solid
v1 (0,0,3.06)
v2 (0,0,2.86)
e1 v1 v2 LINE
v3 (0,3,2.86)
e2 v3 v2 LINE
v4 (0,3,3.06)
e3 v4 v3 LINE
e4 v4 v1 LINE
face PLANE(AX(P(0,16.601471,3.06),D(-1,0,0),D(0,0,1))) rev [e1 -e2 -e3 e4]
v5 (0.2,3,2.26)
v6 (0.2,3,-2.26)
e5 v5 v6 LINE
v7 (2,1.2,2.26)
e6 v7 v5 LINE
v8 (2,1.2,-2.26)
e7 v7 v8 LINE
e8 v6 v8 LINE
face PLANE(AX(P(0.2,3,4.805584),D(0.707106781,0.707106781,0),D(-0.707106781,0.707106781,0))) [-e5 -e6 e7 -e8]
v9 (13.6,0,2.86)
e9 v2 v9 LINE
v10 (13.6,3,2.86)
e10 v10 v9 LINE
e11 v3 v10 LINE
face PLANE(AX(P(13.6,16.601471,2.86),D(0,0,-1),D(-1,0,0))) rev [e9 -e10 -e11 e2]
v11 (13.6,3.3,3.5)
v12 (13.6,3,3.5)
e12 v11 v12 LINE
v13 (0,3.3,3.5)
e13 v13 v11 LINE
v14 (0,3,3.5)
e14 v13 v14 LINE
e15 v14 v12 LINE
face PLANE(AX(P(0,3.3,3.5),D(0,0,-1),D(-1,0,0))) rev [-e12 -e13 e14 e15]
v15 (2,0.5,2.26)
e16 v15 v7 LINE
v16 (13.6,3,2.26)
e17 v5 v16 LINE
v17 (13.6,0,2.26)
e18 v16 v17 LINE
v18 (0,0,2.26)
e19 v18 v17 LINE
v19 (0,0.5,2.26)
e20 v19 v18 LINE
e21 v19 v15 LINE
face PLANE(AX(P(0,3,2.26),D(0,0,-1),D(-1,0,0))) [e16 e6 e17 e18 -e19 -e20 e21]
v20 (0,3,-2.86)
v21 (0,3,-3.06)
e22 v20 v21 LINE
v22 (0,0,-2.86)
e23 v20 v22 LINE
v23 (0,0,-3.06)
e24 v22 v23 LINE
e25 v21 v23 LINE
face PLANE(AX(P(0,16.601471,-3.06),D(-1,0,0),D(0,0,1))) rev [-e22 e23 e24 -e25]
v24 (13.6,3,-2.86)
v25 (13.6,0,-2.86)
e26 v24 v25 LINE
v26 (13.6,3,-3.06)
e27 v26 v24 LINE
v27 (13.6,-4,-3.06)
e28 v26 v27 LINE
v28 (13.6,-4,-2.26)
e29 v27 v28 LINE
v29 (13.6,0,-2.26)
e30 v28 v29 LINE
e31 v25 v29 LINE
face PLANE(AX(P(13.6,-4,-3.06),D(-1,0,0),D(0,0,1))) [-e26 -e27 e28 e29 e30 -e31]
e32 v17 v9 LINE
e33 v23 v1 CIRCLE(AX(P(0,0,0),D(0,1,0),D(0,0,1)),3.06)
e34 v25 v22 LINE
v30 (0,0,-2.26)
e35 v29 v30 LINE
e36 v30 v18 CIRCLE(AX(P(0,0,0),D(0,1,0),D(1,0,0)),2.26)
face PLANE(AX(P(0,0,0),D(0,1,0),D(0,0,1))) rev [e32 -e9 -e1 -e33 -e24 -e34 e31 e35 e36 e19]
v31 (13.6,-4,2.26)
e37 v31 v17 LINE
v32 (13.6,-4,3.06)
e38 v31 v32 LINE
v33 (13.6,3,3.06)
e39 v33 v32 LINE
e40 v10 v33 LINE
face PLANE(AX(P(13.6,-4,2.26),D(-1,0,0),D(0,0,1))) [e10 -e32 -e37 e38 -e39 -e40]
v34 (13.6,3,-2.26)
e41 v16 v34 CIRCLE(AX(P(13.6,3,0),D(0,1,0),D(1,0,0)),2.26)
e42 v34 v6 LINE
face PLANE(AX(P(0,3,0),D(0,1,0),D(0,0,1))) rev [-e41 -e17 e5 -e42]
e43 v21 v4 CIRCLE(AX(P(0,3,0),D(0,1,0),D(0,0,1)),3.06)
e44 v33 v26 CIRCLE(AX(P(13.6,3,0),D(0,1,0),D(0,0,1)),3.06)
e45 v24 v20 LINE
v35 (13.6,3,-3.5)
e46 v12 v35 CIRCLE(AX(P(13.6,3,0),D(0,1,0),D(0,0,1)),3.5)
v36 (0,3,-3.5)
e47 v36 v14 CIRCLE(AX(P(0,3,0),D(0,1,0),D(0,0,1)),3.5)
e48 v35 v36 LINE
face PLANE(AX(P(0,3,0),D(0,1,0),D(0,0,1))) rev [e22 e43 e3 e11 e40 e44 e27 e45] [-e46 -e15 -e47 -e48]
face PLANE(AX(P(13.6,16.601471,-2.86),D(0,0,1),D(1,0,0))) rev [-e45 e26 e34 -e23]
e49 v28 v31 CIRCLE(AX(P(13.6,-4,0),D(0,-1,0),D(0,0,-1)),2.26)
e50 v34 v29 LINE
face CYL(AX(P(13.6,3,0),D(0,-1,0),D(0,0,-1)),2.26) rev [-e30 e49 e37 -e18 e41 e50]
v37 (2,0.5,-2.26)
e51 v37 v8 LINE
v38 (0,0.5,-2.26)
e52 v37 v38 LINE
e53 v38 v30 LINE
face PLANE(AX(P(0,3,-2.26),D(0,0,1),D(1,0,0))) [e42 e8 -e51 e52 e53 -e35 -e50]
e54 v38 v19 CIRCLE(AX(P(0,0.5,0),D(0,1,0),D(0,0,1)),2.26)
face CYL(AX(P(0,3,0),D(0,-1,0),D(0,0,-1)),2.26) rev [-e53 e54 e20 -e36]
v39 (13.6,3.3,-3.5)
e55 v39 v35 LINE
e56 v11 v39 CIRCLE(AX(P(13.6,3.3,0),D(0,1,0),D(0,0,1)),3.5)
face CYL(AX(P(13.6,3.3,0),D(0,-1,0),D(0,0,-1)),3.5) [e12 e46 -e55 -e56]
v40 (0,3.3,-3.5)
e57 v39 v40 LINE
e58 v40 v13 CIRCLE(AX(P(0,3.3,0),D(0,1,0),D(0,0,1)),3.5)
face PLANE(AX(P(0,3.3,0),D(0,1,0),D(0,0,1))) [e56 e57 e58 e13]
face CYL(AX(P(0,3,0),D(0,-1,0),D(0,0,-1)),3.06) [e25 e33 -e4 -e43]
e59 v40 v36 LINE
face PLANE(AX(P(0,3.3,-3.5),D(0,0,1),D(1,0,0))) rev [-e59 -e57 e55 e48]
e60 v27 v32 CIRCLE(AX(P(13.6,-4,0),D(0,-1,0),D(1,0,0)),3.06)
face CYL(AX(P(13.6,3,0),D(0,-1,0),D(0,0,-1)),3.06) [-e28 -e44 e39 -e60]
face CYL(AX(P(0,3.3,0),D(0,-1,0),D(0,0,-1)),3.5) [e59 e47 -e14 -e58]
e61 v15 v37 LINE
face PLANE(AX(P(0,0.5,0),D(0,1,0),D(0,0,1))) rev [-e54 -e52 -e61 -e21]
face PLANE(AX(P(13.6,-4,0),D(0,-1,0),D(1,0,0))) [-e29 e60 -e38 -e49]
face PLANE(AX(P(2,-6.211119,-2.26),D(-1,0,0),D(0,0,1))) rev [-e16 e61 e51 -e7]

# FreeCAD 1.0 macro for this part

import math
import FreeCAD as App
import Part
import Sketcher

V = App.Vector

doc = App.newDocument("Part")
body = doc.addObject("PartDesign::Body", "Body")

sketch1 = body.newObject("Sketcher::SketchObject", "Sketch")
sketch1.AttachmentSupport = (doc.getObject("XZ_Plane"), [""])
sketch1.MapMode = "FlatFace"
sketch1.addGeometry(Part.LineSegment(V(0, 3.1, 0), V(13.6, 3.1, 0)), False)
sketch1.addGeometry(Part.ArcOfCircle(Part.Circle(V(13.6, 0, 0), V(0, 0, 1), 3.1), math.radians(-90), math.radians(90)), False)
sketch1.addGeometry(Part.LineSegment(V(13.6, -3.1, 0), V(0, -3.1, 0)), False)
sketch1.addGeometry(Part.ArcOfCircle(Part.Circle(V(0, 0, 0), V(0, 0, 1), 3.1), math.radians(90), math.radians(270)), False)
sketch1.addGeometry(Part.LineSegment(V(13.6, 2.3, 0), V(0, 2.3, 0)), False)
sketch1.addGeometry(Part.ArcOfCircle(Part.Circle(V(0, 0, 0), V(0, 0, 1), 2.3), math.radians(90), math.radians(270)), False)
sketch1.addGeometry(Part.LineSegment(V(0, -2.3, 0), V(13.6, -2.3, 0)), False)
sketch1.addGeometry(Part.ArcOfCircle(Part.Circle(V(13.6, 0, 0), V(0, 0, 1), 2.3), math.radians(-90), math.radians(90)), False)
sketch1.addConstraint(Sketcher.Constraint("Tangent", 0, 2, 1, 2))
sketch1.addConstraint(Sketcher.Constraint("Tangent", 1, 1, 2, 1))
sketch1.addConstraint(Sketcher.Constraint("Tangent", 2, 2, 3, 2))
sketch1.addConstraint(Sketcher.Constraint("Tangent", 3, 1, 0, 1))
sketch1.addConstraint(Sketcher.Constraint("Tangent", 4, 2, 5, 1))
sketch1.addConstraint(Sketcher.Constraint("Tangent", 5, 2, 6, 1))
sketch1.addConstraint(Sketcher.Constraint("Tangent", 6, 2, 7, 1))
sketch1.addConstraint(Sketcher.Constraint("Tangent", 7, 2, 4, 1))
sketch1.addConstraint(Sketcher.Constraint("Horizontal", 0))
sketch1.addConstraint(Sketcher.Constraint("Horizontal", 2))
sketch1.addConstraint(Sketcher.Constraint("Horizontal", 4))
sketch1.addConstraint(Sketcher.Constraint("Horizontal", 6))
sketch1.addConstraint(Sketcher.Constraint("Coincident", 3, 3, -1, 1))
sketch1.addConstraint(Sketcher.Constraint("Coincident", 5, 3, -1, 1))
sketch1.addConstraint(Sketcher.Constraint("Vertical", 7, 3, 0, 2))
sketch1.addConstraint(Sketcher.Constraint("Radius", 1, 3.06))
sketch1.addConstraint(Sketcher.Constraint("Radius", 5, 2.26))
sketch1.addConstraint(Sketcher.Constraint("DistanceX", 0, 1, 0, 2, 13.6))
pad1 = body.newObject("PartDesign::Pad", "Pad")
pad1.Profile = sketch1
pad1.Length = 3
pad1.Reversed = True

sketch2 = body.newObject("Sketcher::SketchObject", "Sketch001")
sketch2.AttachmentSupport = (doc.getObject("XZ_Plane"), [""])
sketch2.MapMode = "FlatFace"
sketch2.AttachmentOffset = App.Placement(V(0, 0, -3), App.Rotation())
sketch2.addGeometry(Part.LineSegment(V(13.6, -3.5, 0), V(0, -3.5, 0)), False)
sketch2.addGeometry(Part.ArcOfCircle(Part.Circle(V(0, 0, 0), V(0, 0, 1), 3.5), math.radians(90), math.radians(270)), False)
sketch2.addGeometry(Part.LineSegment(V(0, 3.5, 0), V(13.6, 3.5, 0)), False)
sketch2.addGeometry(Part.ArcOfCircle(Part.Circle(V(13.6, 0, 0), V(0, 0, 1), 3.5), math.radians(-90), math.radians(90)), False)
sketch2.addConstraint(Sketcher.Constraint("Tangent", 0, 2, 1, 2))
sketch2.addConstraint(Sketcher.Constraint("Tangent", 1, 1, 2, 1))
sketch2.addConstraint(Sketcher.Constraint("Tangent", 2, 2, 3, 2))
sketch2.addConstraint(Sketcher.Constraint("Tangent", 3, 1, 0, 1))
sketch2.addConstraint(Sketcher.Constraint("Horizontal", 0))
sketch2.addConstraint(Sketcher.Constraint("Horizontal", 2))
sketch2.addConstraint(Sketcher.Constraint("Coincident", 1, 3, -1, 1))
sketch2.addConstraint(Sketcher.Constraint("Radius", 1, 3.5))
sketch2.addConstraint(Sketcher.Constraint("DistanceX", 0, 2, 0, 1, 13.6))
pad2 = body.newObject("PartDesign::Pad", "Pad001")
pad2.Profile = sketch2
pad2.Length = 0.3
pad2.Reversed = True

sketch3 = body.newObject("Sketcher::SketchObject", "Sketch002")
sketch3.AttachmentSupport = (doc.getObject("XZ_Plane"), [""])
sketch3.MapMode = "FlatFace"
sketch3.AttachmentOffset = App.Placement(V(0, 0, -0.5), App.Rotation())
sketch3.addGeometry(Part.LineSegment(V(0, -2.3, 0), V(2, -2.3, 0)), False)
sketch3.addGeometry(Part.LineSegment(V(2, -2.3, 0), V(2, 2.3, 0)), False)
sketch3.addGeometry(Part.LineSegment(V(2, 2.3, 0), V(0, 2.3, 0)), False)
sketch3.addGeometry(Part.ArcOfCircle(Part.Circle(V(0, 0, 0), V(0, 0, 1), 2.3), math.radians(90), math.radians(270)), False)
sketch3.addConstraint(Sketcher.Constraint("Coincident", 0, 2, 1, 1))
sketch3.addConstraint(Sketcher.Constraint("Coincident", 1, 2, 2, 1))
sketch3.addConstraint(Sketcher.Constraint("Tangent", 2, 2, 3, 1))
sketch3.addConstraint(Sketcher.Constraint("Tangent", 3, 2, 0, 1))
sketch3.addConstraint(Sketcher.Constraint("Horizontal", 0))
sketch3.addConstraint(Sketcher.Constraint("Vertical", 1))
sketch3.addConstraint(Sketcher.Constraint("Horizontal", 2))
sketch3.addConstraint(Sketcher.Constraint("Coincident", 3, 3, -1, 1))
sketch3.addConstraint(Sketcher.Constraint("DistanceX", 0, 1, 0, 2, 2.0))
sketch3.addConstraint(Sketcher.Constraint("Radius", 3, 2.26))
pad3 = body.newObject("PartDesign::Pad", "Pad002")
pad3.Profile = sketch3
pad3.Length = 2.5
pad3.Reversed = True

sketch4 = body.newObject("Sketcher::SketchObject", "Sketch003")
sketch4.AttachmentSupport = (doc.getObject("XY_Plane"), [""])
sketch4.MapMode = "FlatFace"
sketch4.AttachmentOffset = App.Placement(V(0, 0, -2.26), App.Rotation())
sketch4.addGeometry(Part.LineSegment(V(2, 3, 0), V(0.2, 3, 0)), False)
sketch4.addGeometry(Part.LineSegment(V(0.2, 3, 0), V(2, 1.2, 0)), False)
sketch4.addGeometry(Part.LineSegment(V(2, 1.2, 0), V(2, 3, 0)), False)
sketch4.addConstraint(Sketcher.Constraint("Coincident", 0, 2, 1, 1))
sketch4.addConstraint(Sketcher.Constraint("Coincident", 1, 2, 2, 1))
sketch4.addConstraint(Sketcher.Constraint("Coincident", 2, 2, 0, 1))
sketch4.addConstraint(Sketcher.Constraint("Horizontal", 0))
sketch4.addConstraint(Sketcher.Constraint("Vertical", 2))
sketch4.addConstraint(Sketcher.Constraint("Equal", 0, 2))
sketch4.addConstraint(Sketcher.Constraint("DistanceX", 0, 2, 0, 1, 1.8))
sketch4.addConstraint(Sketcher.Constraint("DistanceY", -1, 1, 0, 2, 3.0))
sketch4.addConstraint(Sketcher.Constraint("DistanceX", -1, 1, 1, 2, 2.0))
pocket1 = body.newObject("PartDesign::Pocket", "Pocket")
pocket1.Profile = sketch4
pocket1.Length = 4.52
pocket1.Reversed = True

sketch5 = body.newObject("Sketcher::SketchObject", "Sketch004")
sketch5.AttachmentSupport = (doc.getObject("XZ_Plane"), [""])
sketch5.MapMode = "FlatFace"
sketch5.AttachmentOffset = App.Placement(V(0, 0, 4), App.Rotation())
sketch5.addGeometry(Part.ArcOfCircle(Part.Circle(V(13.6, 0, 0), V(0, 0, 1), 2.3), math.radians(-90), math.radians(90)), False)
sketch5.addGeometry(Part.LineSegment(V(13.6, -2.3, 0), V(13.6, -3.1, 0)), False)
sketch5.addGeometry(Part.ArcOfCircle(Part.Circle(V(13.6, 0, 0), V(0, 0, 1), 3.1), math.radians(-90), math.radians(90)), False)
sketch5.addGeometry(Part.LineSegment(V(13.6, 3.1, 0), V(13.6, 2.3, 0)), False)
sketch5.addConstraint(Sketcher.Constraint("Coincident", 0, 1, 1, 1))
sketch5.addConstraint(Sketcher.Constraint("Coincident", 1, 2, 2, 1))
sketch5.addConstraint(Sketcher.Constraint("Coincident", 2, 2, 3, 1))
sketch5.addConstraint(Sketcher.Constraint("Coincident", 3, 2, 0, 2))
sketch5.addConstraint(Sketcher.Constraint("Vertical", 1))
sketch5.addConstraint(Sketcher.Constraint("Vertical", 3))
sketch5.addConstraint(Sketcher.Constraint("Coincident", 2, 3, 0, 3))
sketch5.addConstraint(Sketcher.Constraint("Symmetric", 1, 2, 2, 2, -1))
sketch5.addConstraint(Sketcher.Constraint("Vertical", 2, 3, 0, 1))
sketch5.addConstraint(Sketcher.Constraint("Radius", 0, 2.26))
sketch5.addConstraint(Sketcher.Constraint("Radius", 2, 3.06))
sketch5.addConstraint(Sketcher.Constraint("DistanceX", -1, 1, 0, 3, 13.6))
pad4 = body.newObject("PartDesign::Pad", "Pad003")
pad4.Profile = sketch5
pad4.Length = 4
pad4.Reversed = True

sketch6 = body.newObject("Sketcher::SketchObject", "Sketch005")
sketch6.AttachmentSupport = (doc.getObject("XZ_Plane"), [""])
sketch6.MapMode = "FlatFace"
sketch6.addGeometry(Part.LineSegment(V(0, 3.06, 0), V(0, 2.86, 0)), False)
sketch6.addGeometry(Part.LineSegment(V(0, 2.86, 0), V(13.6, 2.86, 0)), False)
sketch6.addGeometry(Part.LineSegment(V(13.6, 2.86, 0), V(13.6, 3.06, 0)), False)
sketch6.addGeometry(Part.LineSegment(V(13.6, 3.06, 0), V(0, 3.06, 0)), False)
sketch6.addGeometry(Part.LineSegment(V(0, -2.86, 0), V(0, -3.06, 0)), False)
sketch6.addGeometry(Part.LineSegment(V(0, -3.06, 0), V(13.6, -3.06, 0)), False)
sketch6.addGeometry(Part.LineSegment(V(13.6, -3.06, 0), V(13.6, -2.86, 0)), False)
sketch6.addGeometry(Part.LineSegment(V(13.6, -2.86, 0), V(0, -2.86, 0)), False)
sketch6.addConstraint(Sketcher.Constraint("Coincident", 0, 2, 1, 1))
sketch6.addConstraint(Sketcher.Constraint("Coincident", 1, 2, 2, 1))
sketch6.addConstraint(Sketcher.Constraint("Coincident", 2, 2, 3, 1))
sketch6.addConstraint(Sketcher.Constraint("Coincident", 3, 2, 0, 1))
sketch6.addConstraint(Sketcher.Constraint("Coincident", 4, 2, 5, 1))
sketch6.addConstraint(Sketcher.Constraint("Coincident", 5, 2, 6, 1))
sketch6.addConstraint(Sketcher.Constraint("Coincident", 6, 2, 7, 1))
sketch6.addConstraint(Sketcher.Constraint("Coincident", 7, 2, 4, 1))
sketch6.addConstraint(Sketcher.Constraint("Vertical", 0))
sketch6.addConstraint(Sketcher.Constraint("Horizontal", 1))
sketch6.addConstraint(Sketcher.Constraint("Vertical", 2))
sketch6.addConstraint(Sketcher.Constraint("Horizontal", 3))
sketch6.addConstraint(Sketcher.Constraint("Vertical", 4))
sketch6.addConstraint(Sketcher.Constraint("Horizontal", 5))
sketch6.addConstraint(Sketcher.Constraint("Vertical", 6))
sketch6.addConstraint(Sketcher.Constraint("Horizontal", 7))
sketch6.addConstraint(Sketcher.Constraint("Symmetric", 3, 2, 4, 2, -1, 1))
sketch6.addConstraint(Sketcher.Constraint("Symmetric", 1, 2, 6, 2, -1))
sketch6.addConstraint(Sketcher.Constraint("PointOnObject", 0, 2, -2))
sketch6.addConstraint(Sketcher.Constraint("DistanceX", 1, 1, 1, 2, 13.6))
sketch6.addConstraint(Sketcher.Constraint("DistanceY", 0, 2, 0, 1, 0.2))
sketch6.addConstraint(Sketcher.Constraint("DistanceY", -1, 1, 0, 2, 2.86))
pocket2 = body.newObject("PartDesign::Pocket", "Pocket001")
pocket2.Profile = sketch6
pocket2.Length = 3

doc.recompute()
